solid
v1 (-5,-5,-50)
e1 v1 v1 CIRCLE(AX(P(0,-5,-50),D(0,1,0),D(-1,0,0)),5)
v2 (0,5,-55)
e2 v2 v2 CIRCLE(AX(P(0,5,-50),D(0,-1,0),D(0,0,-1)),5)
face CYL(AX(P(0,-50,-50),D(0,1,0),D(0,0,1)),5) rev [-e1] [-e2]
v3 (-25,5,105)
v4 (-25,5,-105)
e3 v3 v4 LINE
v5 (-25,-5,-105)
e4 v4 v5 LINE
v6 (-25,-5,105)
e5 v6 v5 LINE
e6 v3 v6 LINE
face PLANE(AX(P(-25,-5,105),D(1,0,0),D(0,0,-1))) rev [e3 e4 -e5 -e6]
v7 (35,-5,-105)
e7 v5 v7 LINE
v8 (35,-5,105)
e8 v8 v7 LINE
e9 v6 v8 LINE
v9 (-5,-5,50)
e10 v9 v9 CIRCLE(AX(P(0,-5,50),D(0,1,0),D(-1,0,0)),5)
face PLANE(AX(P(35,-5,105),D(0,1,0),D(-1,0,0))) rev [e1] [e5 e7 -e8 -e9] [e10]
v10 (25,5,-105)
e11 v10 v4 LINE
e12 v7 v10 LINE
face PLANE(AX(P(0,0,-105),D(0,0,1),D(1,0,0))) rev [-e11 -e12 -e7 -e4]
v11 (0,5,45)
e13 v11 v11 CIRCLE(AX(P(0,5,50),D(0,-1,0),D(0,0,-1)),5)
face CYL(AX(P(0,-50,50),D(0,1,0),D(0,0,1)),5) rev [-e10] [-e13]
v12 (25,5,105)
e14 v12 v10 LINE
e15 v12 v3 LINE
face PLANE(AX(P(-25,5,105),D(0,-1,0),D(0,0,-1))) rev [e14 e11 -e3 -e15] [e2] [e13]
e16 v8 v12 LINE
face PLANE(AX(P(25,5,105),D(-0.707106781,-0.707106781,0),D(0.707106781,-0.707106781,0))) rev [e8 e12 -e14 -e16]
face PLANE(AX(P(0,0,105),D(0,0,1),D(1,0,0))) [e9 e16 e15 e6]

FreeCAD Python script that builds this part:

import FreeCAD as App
import Part
import Sketcher

V = App.Vector
Q = App.Units.Quantity


def add_polygon(sketch, points):
    """Adds a closed chain of lines whose ends are joined by coincident constraints."""
    first, n = sketch.GeometryCount, len(points)
    for a, b in zip(points, points[1:] + points[:1]):
        sketch.addGeometry(Part.LineSegment(App.Vector(*a, 0), App.Vector(*b, 0)), False)
    for i in range(n):
        sketch.addConstraint(Sketcher.Constraint("Coincident", first + i, 2, first + (i + 1) % n, 1))

doc = App.newDocument("Part")
body = doc.addObject("PartDesign::Body", "Body")

# Sketch on XY plane
sketch1 = body.newObject("Sketcher::SketchObject", "Sketch")
sketch1.AttachmentSupport = (doc.getObject("XY_Plane"), [""])
sketch1.MapMode = "FlatFace"
add_polygon(sketch1, [(35, -5), (25, 5), (-25, 5), (-25, -5)])  # lines 0-3
sketch1.addConstraint(Sketcher.Constraint("Horizontal", 1))
sketch1.addConstraint(Sketcher.Constraint("Vertical", 2))
sketch1.addConstraint(Sketcher.Constraint("Horizontal", 3))
sketch1.addConstraint(Sketcher.Constraint("Symmetric", 0, 2, 2, 2, -1, 1))
sketch1.addConstraint(Sketcher.Constraint("DistanceX", 1, 2, 1, 1, Q("50 mm")))
sketch1.addConstraint(Sketcher.Constraint("DistanceX", 3, 1, 3, 2, Q("60 mm")))
sketch1.addConstraint(Sketcher.Constraint("DistanceY", 2, 2, 2, 1, Q("10 mm")))
pad1 = body.newObject("PartDesign::Pad", "Pad")
pad1.Profile = sketch1
pad1.Length = 210
pad1.Midplane = True

# Sketch on XZ plane
sketch2 = body.newObject("Sketcher::SketchObject", "Sketch001")
sketch2.AttachmentSupport = (doc.getObject("XZ_Plane"), [""])
sketch2.MapMode = "FlatFace"
sketch2.addGeometry(Part.Circle(V(0, -50, 0), V(0, 0, 1), 5), False)
sketch2.addGeometry(Part.Circle(V(0, 50, 0), V(0, 0, 1), 5), False)
sketch2.addConstraint(Sketcher.Constraint("Equal", 0, 1))
sketch2.addConstraint(Sketcher.Constraint("Symmetric", 0, 3, 1, 3, -1, 1))
sketch2.addConstraint(Sketcher.Constraint("PointOnObject", 0, 3, -2))
sketch2.addConstraint(Sketcher.Constraint("Diameter", 0, Q("10 mm")))
sketch2.addConstraint(Sketcher.Constraint("DistanceY", 0, 3, -1, 1, Q("50 mm")))
pocket1 = body.newObject("PartDesign::Pocket", "Pocket")
pocket1.Profile = sketch2
pocket1.Type = "ThroughAll"
pocket1.Midplane = True

doc.recompute()
